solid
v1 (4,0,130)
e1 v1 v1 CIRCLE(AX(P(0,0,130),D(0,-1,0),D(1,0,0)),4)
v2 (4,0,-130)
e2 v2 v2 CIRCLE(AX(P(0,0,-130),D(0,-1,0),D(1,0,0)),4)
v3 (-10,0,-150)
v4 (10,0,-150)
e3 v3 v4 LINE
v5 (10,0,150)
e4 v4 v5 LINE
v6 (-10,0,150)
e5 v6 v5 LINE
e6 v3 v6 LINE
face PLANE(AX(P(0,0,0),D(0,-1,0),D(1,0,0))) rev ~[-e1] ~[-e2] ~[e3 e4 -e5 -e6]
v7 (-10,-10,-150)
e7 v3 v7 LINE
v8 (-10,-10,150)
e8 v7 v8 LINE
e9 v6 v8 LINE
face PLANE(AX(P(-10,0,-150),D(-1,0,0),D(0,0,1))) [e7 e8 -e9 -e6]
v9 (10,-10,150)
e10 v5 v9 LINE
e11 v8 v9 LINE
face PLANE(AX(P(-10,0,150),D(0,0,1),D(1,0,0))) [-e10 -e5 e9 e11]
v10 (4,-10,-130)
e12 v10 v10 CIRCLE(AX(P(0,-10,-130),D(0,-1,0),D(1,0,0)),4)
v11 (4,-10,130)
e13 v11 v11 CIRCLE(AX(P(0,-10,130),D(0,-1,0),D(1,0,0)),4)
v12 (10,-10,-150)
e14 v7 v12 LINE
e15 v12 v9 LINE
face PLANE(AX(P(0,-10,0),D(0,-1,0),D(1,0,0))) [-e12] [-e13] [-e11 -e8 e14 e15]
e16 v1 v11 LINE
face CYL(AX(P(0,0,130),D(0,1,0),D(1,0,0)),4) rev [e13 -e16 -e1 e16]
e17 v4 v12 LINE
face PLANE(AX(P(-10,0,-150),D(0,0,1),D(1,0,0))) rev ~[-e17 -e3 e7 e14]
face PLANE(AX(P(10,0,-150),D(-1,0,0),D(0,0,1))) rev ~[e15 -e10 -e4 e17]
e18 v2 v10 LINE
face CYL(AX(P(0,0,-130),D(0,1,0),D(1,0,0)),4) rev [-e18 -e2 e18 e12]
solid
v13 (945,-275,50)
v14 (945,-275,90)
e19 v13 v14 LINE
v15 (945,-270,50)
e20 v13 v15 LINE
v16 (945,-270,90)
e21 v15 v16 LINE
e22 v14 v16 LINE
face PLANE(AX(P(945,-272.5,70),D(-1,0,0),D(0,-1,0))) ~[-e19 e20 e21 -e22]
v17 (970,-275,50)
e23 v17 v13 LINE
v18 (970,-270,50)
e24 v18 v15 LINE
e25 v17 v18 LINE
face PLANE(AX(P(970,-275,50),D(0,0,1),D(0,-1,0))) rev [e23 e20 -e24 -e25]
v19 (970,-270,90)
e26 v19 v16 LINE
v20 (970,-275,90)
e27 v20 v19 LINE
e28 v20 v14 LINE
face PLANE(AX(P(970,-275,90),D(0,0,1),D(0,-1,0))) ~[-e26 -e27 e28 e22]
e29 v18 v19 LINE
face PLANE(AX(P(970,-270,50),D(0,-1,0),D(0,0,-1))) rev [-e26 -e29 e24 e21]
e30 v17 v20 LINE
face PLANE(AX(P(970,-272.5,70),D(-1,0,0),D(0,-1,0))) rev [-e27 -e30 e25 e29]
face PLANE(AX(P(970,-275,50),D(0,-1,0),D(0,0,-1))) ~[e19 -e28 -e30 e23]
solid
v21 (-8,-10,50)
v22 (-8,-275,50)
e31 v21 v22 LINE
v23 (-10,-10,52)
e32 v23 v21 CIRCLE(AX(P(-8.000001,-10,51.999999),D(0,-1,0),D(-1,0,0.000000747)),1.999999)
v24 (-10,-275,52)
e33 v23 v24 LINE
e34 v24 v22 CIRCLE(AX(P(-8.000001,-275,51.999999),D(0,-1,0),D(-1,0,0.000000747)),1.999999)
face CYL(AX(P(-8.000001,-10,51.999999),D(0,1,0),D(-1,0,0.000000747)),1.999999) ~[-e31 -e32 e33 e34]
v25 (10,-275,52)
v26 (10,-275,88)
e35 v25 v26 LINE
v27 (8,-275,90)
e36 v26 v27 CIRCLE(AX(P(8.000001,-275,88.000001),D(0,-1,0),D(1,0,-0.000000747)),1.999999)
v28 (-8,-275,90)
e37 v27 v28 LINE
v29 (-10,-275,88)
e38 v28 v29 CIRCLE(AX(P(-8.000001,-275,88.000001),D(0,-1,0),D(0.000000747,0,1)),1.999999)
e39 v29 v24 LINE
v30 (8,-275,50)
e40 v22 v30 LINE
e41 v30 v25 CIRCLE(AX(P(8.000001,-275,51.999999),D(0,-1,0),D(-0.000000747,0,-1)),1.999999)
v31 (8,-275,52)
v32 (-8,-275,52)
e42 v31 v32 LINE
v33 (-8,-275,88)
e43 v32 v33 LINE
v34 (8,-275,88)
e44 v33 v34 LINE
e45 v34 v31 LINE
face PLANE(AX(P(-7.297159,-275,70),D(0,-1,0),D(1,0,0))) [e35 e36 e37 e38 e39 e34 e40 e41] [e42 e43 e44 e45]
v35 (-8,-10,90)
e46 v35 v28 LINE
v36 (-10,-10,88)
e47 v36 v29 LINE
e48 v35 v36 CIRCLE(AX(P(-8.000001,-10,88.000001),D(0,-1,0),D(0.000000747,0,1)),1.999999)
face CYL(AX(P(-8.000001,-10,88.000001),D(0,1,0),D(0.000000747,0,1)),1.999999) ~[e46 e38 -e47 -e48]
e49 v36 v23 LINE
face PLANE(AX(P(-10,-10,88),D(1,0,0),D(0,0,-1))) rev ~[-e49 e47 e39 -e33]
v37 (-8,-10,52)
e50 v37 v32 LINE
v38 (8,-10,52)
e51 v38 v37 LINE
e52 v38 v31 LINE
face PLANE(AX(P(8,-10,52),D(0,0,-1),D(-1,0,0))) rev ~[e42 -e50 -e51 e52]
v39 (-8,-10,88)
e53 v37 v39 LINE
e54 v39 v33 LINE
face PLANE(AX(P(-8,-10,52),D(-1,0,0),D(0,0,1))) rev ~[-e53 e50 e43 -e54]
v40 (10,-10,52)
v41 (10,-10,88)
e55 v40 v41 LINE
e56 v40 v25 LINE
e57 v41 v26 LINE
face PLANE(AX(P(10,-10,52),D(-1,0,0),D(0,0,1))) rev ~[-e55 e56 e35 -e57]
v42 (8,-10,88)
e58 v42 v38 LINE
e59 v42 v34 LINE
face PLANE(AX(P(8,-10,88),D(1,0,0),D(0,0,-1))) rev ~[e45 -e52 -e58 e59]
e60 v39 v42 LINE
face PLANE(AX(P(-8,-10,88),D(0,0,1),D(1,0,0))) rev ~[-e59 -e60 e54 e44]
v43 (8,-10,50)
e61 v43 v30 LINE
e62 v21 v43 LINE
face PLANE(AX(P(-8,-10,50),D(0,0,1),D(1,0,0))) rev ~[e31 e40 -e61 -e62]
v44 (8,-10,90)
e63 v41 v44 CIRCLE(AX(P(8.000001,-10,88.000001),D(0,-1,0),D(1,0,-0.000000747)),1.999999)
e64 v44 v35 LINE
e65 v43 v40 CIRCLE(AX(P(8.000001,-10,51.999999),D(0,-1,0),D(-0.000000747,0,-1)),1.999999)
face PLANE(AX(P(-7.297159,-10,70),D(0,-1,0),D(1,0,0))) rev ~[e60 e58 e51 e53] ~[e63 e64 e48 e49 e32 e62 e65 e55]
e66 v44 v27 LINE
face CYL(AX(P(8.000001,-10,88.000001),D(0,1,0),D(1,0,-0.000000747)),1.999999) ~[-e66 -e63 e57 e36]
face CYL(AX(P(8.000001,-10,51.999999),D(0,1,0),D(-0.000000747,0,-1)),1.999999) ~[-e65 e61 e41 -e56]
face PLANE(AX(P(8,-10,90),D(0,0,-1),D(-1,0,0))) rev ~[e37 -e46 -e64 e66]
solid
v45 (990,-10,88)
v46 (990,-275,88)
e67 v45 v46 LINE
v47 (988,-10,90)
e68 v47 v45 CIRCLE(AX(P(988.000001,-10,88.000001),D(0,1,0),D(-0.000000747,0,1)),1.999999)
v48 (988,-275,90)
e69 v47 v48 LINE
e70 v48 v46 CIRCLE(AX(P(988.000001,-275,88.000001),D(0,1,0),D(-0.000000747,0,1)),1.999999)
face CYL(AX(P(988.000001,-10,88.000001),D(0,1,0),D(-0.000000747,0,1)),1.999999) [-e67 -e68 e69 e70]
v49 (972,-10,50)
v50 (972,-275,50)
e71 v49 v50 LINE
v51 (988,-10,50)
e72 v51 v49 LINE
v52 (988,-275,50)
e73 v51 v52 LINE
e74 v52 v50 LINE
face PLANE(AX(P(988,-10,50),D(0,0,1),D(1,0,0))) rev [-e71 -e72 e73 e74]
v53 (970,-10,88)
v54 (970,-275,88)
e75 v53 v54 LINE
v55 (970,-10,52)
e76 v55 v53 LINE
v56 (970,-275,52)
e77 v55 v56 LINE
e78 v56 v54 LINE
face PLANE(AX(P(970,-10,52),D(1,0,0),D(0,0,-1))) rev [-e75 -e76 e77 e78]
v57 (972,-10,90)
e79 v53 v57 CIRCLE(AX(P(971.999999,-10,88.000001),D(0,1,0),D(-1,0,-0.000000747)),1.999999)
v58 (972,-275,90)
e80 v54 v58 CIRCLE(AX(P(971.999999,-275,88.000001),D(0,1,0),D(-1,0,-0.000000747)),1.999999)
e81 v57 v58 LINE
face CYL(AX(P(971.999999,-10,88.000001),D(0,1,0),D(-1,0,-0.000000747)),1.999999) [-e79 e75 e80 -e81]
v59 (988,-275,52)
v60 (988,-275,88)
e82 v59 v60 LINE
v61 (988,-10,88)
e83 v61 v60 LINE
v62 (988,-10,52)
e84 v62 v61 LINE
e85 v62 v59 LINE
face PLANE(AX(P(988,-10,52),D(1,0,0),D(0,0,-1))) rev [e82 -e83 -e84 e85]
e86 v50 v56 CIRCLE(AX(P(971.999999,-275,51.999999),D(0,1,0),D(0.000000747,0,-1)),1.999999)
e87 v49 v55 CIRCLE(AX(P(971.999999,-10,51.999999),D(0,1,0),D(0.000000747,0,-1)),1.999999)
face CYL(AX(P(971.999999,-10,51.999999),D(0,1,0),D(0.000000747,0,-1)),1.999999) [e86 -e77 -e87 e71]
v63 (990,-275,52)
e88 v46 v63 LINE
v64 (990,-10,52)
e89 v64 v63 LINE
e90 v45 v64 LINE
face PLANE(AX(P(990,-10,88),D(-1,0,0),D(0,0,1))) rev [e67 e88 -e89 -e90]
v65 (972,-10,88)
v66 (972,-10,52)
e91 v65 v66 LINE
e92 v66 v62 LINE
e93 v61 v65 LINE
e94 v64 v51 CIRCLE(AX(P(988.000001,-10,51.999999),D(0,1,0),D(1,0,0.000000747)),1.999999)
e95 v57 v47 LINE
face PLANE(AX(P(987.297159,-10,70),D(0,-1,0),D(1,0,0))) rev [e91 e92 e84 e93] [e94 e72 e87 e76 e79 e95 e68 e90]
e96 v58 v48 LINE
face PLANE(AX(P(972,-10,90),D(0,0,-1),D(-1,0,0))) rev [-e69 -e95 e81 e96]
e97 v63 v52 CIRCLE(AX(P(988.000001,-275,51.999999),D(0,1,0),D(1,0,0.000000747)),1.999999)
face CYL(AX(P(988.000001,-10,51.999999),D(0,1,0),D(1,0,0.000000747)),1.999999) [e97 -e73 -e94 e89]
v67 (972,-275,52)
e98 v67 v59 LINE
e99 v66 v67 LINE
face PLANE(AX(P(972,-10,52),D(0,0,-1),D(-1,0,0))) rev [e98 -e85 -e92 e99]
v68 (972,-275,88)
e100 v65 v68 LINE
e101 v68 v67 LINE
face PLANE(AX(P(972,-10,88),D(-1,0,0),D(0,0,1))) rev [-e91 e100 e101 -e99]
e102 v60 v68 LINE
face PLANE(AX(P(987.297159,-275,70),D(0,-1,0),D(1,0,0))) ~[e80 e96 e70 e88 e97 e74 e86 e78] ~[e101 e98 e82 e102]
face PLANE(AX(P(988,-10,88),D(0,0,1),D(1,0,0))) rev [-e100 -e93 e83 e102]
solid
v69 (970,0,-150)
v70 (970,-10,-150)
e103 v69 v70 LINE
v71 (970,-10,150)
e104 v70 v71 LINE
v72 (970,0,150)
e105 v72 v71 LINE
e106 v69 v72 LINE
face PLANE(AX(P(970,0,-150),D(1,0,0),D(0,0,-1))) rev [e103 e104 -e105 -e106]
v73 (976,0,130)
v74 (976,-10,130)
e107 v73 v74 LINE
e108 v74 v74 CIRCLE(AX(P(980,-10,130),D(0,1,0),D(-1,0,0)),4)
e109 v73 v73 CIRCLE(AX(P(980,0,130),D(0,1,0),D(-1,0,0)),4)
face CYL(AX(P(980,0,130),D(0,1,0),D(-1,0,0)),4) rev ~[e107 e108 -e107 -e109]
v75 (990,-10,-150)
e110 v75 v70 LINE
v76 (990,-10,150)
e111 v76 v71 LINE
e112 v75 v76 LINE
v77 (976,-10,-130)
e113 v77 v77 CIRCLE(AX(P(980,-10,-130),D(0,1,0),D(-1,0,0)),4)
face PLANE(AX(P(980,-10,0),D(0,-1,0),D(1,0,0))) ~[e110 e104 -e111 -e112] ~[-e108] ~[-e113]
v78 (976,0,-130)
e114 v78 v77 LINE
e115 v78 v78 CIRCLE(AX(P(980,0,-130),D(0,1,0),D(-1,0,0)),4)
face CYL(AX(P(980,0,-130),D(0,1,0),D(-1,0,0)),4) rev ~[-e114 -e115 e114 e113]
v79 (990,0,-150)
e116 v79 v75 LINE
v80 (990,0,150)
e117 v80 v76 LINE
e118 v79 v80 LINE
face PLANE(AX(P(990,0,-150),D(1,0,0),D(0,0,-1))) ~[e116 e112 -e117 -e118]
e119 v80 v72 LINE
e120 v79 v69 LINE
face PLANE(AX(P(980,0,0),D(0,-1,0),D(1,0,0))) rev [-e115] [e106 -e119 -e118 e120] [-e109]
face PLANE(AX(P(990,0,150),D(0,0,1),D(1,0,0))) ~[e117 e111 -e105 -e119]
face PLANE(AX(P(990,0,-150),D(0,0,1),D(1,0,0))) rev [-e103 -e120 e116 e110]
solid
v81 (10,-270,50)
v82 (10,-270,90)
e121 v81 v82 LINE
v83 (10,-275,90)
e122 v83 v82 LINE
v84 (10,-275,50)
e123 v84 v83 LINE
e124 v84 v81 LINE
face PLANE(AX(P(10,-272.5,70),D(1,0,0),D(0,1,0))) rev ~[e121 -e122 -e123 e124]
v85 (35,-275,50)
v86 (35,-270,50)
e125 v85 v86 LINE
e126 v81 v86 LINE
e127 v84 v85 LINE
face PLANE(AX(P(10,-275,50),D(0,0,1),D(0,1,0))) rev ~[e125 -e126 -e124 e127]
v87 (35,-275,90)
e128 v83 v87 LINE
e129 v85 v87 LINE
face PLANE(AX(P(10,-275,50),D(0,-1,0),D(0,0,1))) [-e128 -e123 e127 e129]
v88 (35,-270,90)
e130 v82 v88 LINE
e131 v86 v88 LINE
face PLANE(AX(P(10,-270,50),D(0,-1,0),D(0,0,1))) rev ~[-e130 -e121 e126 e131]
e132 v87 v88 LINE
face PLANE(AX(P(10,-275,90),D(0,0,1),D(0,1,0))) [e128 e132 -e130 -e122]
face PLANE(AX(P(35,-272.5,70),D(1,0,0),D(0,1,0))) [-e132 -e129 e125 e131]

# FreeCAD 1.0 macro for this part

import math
import FreeCAD as App
import Part
import Sketcher

doc = App.newDocument("Part")
body = doc.addObject("PartDesign::Body", "Body")

# Sketch on XZ plane
sketch1 = body.newObject("Sketcher::SketchObject", "Sketch")
sketch1.AttachmentSupport = (doc.getObject("XZ_Plane"), [""])
sketch1.MapMode = "FlatFace"
sketch1.addGeometry([
    Part.LineSegment(App.Vector(-10, 150, 0), App.Vector(-10, -150, 0)),  # 0
    Part.LineSegment(App.Vector(-10, -150, 0), App.Vector(10, -150, 0)),  # 1
    Part.LineSegment(App.Vector(10, -150, 0), App.Vector(10, 150, 0)),  # 2
    Part.LineSegment(App.Vector(10, 150, 0), App.Vector(-10, 150, 0)),  # 3
    Part.Circle(App.Vector(0, -130, 0), App.Vector(0, 0, 1), 4),  # 4
    Part.Circle(App.Vector(0, 130, 0), App.Vector(0, 0, 1), 4),  # 5
], False)
sketch1.addConstraint([
    Sketcher.Constraint("Coincident", 0, 2, 1, 1),
    Sketcher.Constraint("Coincident", 1, 2, 2, 1),
    Sketcher.Constraint("Coincident", 2, 2, 3, 1),
    Sketcher.Constraint("Coincident", 3, 2, 0, 1),
    Sketcher.Constraint("Vertical", 0),
    Sketcher.Constraint("Horizontal", 1),
    Sketcher.Constraint("Vertical", 2),
    Sketcher.Constraint("Horizontal", 3),
    Sketcher.Constraint("Equal", 4, 5),
    Sketcher.Constraint("Symmetric", 4, 3, 5, 3, -1, 1),
    Sketcher.Constraint("Symmetric", 0, 2, 2, 2, -1, 1),
    Sketcher.Constraint("PointOnObject", 4, 3, -2),
    Sketcher.Constraint("Diameter", 4, 8.0),
    Sketcher.Constraint("DistanceX", 1, 1, 1, 2, 20.0),
    Sketcher.Constraint("DistanceY", 0, 2, 0, 1, 300.0),
    Sketcher.Constraint("DistanceY", 4, 3, -1, 1, 130.0),
])
pad1 = body.newObject("PartDesign::Pad", "Pad")
pad1.Profile = sketch1
pad1.Length = 10
body2 = doc.addObject("PartDesign::Body", "Body001")

# Sketch on XZ plane
sketch2 = body2.newObject("Sketcher::SketchObject", "Sketch001")
sketch2.AttachmentSupport = (doc.getObject("XZ_Plane001"), [""])
sketch2.MapMode = "FlatFace"
sketch2.AttachmentOffset = App.Placement(App.Vector(0, 0, 10), App.Rotation())
sketch2.addGeometry([
    Part.ArcOfCircle(Part.Circle(App.Vector(-8, 88, 0), App.Vector(0, 0, 1), 2), math.radians(90), math.radians(180)),  # 0
    Part.LineSegment(App.Vector(-10, 88, 0), App.Vector(-10, 52, 0)),  # 1
    Part.ArcOfCircle(Part.Circle(App.Vector(-8, 52, 0), App.Vector(0, 0, 1), 2), math.radians(180), math.radians(270)),  # 2
    Part.LineSegment(App.Vector(-8, 50, 0), App.Vector(8, 50, 0)),  # 3
    Part.ArcOfCircle(Part.Circle(App.Vector(8, 52, 0), App.Vector(0, 0, 1), 2), math.radians(-90), math.radians(0)),  # 4
    Part.LineSegment(App.Vector(10, 52, 0), App.Vector(10, 88, 0)),  # 5
    Part.ArcOfCircle(Part.Circle(App.Vector(8, 88, 0), App.Vector(0, 0, 1), 2), math.radians(0), math.radians(90)),  # 6
    Part.LineSegment(App.Vector(8, 90, 0), App.Vector(-8, 90, 0)),  # 7
    Part.LineSegment(App.Vector(-8, 52, 0), App.Vector(-8, 88, 0)),  # 8
    Part.LineSegment(App.Vector(-8, 88, 0), App.Vector(8, 88, 0)),  # 9
    Part.LineSegment(App.Vector(8, 88, 0), App.Vector(8, 52, 0)),  # 10
    Part.LineSegment(App.Vector(8, 52, 0), App.Vector(-8, 52, 0)),  # 11
], False)
sketch2.addConstraint([
    Sketcher.Constraint("Tangent", 0, 2, 1, 1),
    Sketcher.Constraint("Tangent", 1, 2, 2, 1),
    Sketcher.Constraint("Tangent", 2, 2, 3, 1),
    Sketcher.Constraint("Tangent", 3, 2, 4, 1),
    Sketcher.Constraint("Tangent", 4, 2, 5, 1),
    Sketcher.Constraint("Tangent", 5, 2, 6, 1),
    Sketcher.Constraint("Tangent", 6, 2, 7, 1),
    Sketcher.Constraint("Tangent", 7, 2, 0, 1),
    Sketcher.Constraint("Coincident", 8, 2, 9, 1),
    Sketcher.Constraint("Coincident", 9, 2, 10, 1),
    Sketcher.Constraint("Coincident", 10, 2, 11, 1),
    Sketcher.Constraint("Coincident", 11, 2, 8, 1),
    Sketcher.Constraint("Vertical", 1),
    Sketcher.Constraint("Horizontal", 3),
    Sketcher.Constraint("Vertical", 5),
    Sketcher.Constraint("Horizontal", 7),
    Sketcher.Constraint("Vertical", 8),
    Sketcher.Constraint("Horizontal", 9),
    Sketcher.Constraint("Vertical", 10),
    Sketcher.Constraint("Horizontal", 11),
    Sketcher.Constraint("Coincident", 8, 2, 0, 3),
    Sketcher.Constraint("Coincident", 9, 2, 6, 3),
    Sketcher.Constraint("Coincident", 10, 2, 4, 3),
    Sketcher.Constraint("Equal", 0, 2),
    Sketcher.Constraint("Radius", 0, 1.999999),
    Sketcher.Constraint("DistanceX", 3, 1, 3, 2, 16.0),
    Sketcher.Constraint("DistanceY", 1, 2, 1, 1, 36.0),
    Sketcher.Constraint("DistanceX", 0, 3, -1, 1, 8.000001),
    Sketcher.Constraint("DistanceY", -1, 1, 0, 3, 88.000001),
])
pad2 = body2.newObject("PartDesign::Pad", "Pad001")
pad2.Profile = sketch2
pad2.Length = 265
body3 = doc.addObject("PartDesign::Body", "Body002")

# Sketch on YZ plane
sketch3 = body3.newObject("Sketcher::SketchObject", "Sketch002")
sketch3.AttachmentSupport = (doc.getObject("YZ_Plane002"), [""])
sketch3.MapMode = "FlatFace"
sketch3.AttachmentOffset = App.Placement(App.Vector(0, 0, 10), App.Rotation())
sketch3.addGeometry([
    Part.LineSegment(App.Vector(-275, 90, 0), App.Vector(-275, 50, 0)),
    Part.LineSegment(App.Vector(-275, 50, 0), App.Vector(-270, 50, 0)),
    Part.LineSegment(App.Vector(-270, 50, 0), App.Vector(-270, 90, 0)),
    Part.LineSegment(App.Vector(-270, 90, 0), App.Vector(-275, 90, 0)),
], False)
sketch3.addConstraint([
    Sketcher.Constraint("Coincident", 0, 2, 1, 1),
    Sketcher.Constraint("Coincident", 1, 2, 2, 1),
    Sketcher.Constraint("Coincident", 2, 2, 3, 1),
    Sketcher.Constraint("Coincident", 3, 2, 0, 1),
    Sketcher.Constraint("Vertical", 0),
    Sketcher.Constraint("Horizontal", 1),
    Sketcher.Constraint("Vertical", 2),
    Sketcher.Constraint("Horizontal", 3),
    Sketcher.Constraint("DistanceX", 1, 1, 1, 2, 5.0),
    Sketcher.Constraint("DistanceY", 0, 2, 0, 1, 40.0),
    Sketcher.Constraint("DistanceX", 0, 2, -1, 1, 275.0),
    Sketcher.Constraint("DistanceY", -1, 1, 0, 2, 50.0),
])
pad3 = body3.newObject("PartDesign::Pad", "Pad002")
pad3.Profile = sketch3
pad3.Length = 25
body4 = doc.addObject("PartDesign::Body", "Body003")
doc.recompute()

mirroring = doc.addObject("Part::Mirroring", "Mirroring")
mirroring.Source = body
mirroring.Base = App.Vector(490, 0, 0)
mirroring.Normal = App.Vector(1, 0, 0)
body4.BaseFeature = mirroring
doc.recompute()
body5 = doc.addObject("PartDesign::Body", "Body004")
doc.recompute()

mirroring2 = doc.addObject("Part::Mirroring", "Mirroring001")
mirroring2.Source = body2
mirroring2.Base = App.Vector(490, 0, 0)
mirroring2.Normal = App.Vector(1, 0, 0)
body5.BaseFeature = mirroring2
doc.recompute()
body6 = doc.addObject("PartDesign::Body", "Body005")
doc.recompute()

mirroring3 = doc.addObject("Part::Mirroring", "Mirroring002")
mirroring3.Source = body3
mirroring3.Base = App.Vector(490, 0, 0)
mirroring3.Normal = App.Vector(1, 0, 0)
body6.BaseFeature = mirroring3
doc.recompute()
mirroring.Visibility = False
mirroring2.Visibility = False
mirroring3.Visibility = False

doc.recompute()
